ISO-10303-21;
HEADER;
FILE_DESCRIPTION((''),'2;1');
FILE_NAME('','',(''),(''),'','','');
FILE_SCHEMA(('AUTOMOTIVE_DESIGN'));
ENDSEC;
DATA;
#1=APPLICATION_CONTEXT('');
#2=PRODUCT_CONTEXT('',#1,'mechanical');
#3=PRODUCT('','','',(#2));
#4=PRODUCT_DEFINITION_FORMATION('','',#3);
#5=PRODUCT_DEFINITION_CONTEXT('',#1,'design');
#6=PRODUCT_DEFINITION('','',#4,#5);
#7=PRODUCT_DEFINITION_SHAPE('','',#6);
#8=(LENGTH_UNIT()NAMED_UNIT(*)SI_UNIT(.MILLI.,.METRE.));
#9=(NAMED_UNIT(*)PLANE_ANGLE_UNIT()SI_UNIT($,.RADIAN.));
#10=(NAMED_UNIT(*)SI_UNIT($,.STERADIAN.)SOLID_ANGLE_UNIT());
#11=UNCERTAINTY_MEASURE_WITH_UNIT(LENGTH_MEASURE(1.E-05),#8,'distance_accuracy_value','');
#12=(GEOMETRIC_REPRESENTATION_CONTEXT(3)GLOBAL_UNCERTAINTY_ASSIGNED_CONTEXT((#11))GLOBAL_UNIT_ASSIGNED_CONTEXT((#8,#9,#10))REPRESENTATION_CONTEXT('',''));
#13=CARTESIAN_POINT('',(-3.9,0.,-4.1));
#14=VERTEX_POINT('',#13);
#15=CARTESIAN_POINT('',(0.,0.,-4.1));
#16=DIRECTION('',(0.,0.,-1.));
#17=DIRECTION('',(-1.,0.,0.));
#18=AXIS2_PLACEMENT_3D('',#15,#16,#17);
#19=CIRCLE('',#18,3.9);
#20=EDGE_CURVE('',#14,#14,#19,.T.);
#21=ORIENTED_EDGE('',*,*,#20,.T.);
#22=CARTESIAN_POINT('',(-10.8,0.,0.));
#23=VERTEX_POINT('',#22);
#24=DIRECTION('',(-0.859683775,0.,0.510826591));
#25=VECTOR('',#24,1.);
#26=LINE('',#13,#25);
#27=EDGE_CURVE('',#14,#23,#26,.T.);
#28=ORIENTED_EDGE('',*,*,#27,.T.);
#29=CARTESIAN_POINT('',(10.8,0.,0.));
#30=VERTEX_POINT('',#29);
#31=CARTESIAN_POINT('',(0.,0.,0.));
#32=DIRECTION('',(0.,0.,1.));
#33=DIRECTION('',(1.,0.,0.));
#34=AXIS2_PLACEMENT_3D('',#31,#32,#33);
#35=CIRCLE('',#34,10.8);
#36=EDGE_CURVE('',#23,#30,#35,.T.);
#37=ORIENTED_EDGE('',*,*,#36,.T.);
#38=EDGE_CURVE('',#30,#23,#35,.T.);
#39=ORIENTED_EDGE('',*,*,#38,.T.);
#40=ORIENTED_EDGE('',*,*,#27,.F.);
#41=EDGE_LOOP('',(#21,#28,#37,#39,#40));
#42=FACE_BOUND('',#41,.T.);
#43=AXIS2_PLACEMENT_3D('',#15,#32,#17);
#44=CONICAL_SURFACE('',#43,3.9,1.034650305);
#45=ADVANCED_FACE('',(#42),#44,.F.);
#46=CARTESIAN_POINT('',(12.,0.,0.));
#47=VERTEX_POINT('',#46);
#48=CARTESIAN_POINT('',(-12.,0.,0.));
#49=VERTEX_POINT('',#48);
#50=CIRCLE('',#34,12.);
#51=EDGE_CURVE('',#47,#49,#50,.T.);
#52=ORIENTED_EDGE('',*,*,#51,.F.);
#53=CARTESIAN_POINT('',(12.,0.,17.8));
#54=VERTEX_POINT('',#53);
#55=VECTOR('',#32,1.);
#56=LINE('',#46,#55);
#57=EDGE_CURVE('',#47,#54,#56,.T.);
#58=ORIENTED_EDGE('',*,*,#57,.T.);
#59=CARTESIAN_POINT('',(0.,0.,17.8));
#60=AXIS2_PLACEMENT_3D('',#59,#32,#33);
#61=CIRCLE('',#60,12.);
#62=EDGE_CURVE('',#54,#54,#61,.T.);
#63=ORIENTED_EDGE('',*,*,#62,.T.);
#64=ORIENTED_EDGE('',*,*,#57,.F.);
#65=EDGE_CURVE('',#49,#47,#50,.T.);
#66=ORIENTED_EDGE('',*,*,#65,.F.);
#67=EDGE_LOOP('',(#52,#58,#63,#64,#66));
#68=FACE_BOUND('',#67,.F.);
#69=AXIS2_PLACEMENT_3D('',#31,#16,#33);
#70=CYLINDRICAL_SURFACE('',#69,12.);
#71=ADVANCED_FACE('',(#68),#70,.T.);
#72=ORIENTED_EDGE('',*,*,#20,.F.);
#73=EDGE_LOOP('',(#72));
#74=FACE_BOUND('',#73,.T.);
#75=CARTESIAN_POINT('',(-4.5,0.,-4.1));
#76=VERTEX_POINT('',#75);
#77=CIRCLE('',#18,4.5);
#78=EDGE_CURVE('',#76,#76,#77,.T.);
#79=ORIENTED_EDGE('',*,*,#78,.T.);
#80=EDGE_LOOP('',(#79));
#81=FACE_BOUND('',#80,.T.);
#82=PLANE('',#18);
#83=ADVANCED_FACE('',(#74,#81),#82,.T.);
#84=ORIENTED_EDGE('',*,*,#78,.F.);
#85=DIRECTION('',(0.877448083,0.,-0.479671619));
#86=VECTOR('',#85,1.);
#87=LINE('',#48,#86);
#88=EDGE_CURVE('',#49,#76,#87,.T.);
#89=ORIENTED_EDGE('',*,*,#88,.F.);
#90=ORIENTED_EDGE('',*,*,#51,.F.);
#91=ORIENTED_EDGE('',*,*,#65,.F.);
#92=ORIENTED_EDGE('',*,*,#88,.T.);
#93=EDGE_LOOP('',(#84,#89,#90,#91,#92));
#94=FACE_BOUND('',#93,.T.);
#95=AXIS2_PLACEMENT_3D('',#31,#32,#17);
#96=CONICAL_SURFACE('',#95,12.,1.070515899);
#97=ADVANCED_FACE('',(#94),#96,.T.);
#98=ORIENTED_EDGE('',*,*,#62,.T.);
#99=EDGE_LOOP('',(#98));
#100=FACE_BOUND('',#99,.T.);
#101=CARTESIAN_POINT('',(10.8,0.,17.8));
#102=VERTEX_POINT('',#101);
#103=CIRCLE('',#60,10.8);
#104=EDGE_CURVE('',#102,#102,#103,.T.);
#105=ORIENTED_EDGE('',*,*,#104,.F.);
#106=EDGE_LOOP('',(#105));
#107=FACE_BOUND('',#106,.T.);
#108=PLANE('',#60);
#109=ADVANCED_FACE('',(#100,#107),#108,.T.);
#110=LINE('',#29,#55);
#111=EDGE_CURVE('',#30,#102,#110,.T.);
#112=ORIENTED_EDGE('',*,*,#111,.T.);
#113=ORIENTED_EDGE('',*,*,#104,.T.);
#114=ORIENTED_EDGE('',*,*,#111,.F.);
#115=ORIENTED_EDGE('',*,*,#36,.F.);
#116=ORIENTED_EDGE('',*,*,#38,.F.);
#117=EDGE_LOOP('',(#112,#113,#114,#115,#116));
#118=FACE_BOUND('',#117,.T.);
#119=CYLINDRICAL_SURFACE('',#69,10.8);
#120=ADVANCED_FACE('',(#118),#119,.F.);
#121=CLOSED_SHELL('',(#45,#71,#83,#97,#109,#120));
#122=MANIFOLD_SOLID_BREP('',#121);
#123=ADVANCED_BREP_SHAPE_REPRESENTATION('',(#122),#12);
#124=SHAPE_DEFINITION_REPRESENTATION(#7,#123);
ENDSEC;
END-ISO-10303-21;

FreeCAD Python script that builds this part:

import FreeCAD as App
import Part
import Sketcher

V = App.Vector


def add_polygon(sketch, points):
    """Adds a closed chain of lines whose ends are joined by coincident constraints."""
    first, n = sketch.GeometryCount, len(points)
    for a, b in zip(points, points[1:] + points[:1]):
        sketch.addGeometry(Part.LineSegment(App.Vector(*a, 0), App.Vector(*b, 0)), False)
    for i in range(n):
        sketch.addConstraint(Sketcher.Constraint("Coincident", first + i, 2, first + (i + 1) % n, 1))

doc = App.newDocument("Part")
body = doc.addObject("PartDesign::Body", "Body")

sketch1 = body.newObject("Sketcher::SketchObject", "Sketch")
sketch1.AttachmentSupport = (doc.getObject("XY_Plane"), [""])
sketch1.MapMode = "FlatFace"
sketch1.addGeometry(Part.Circle(V(0, 0, 0), V(0, 0, 1), 12), False)
sketch1.addGeometry(Part.Circle(V(0, 0, 0), V(0, 0, 1), 11), False)
sketch1.addConstraint(Sketcher.Constraint("Coincident", 0, 3, -1, 1))
sketch1.addConstraint(Sketcher.Constraint("Coincident", 1, 3, -1, 1))
sketch1.addConstraint(Sketcher.Constraint("Diameter", 0, 24.0))
sketch1.addConstraint(Sketcher.Constraint("Diameter", 1, 21.6))
pad1 = body.newObject("PartDesign::Pad", "Pad")
pad1.Profile = sketch1
pad1.Length = 17.8

sketch2 = body.newObject("Sketcher::SketchObject", "Sketch001")
sketch2.AttachmentSupport = (doc.getObject("XZ_Plane"), [""])
sketch2.MapMode = "FlatFace"
add_polygon(sketch2, [(-3.9, -4.1), (-10.8, 0), (-12, 0), (-4.5, -4.1)])
sketch2.addConstraint(Sketcher.Constraint("Horizontal", 1))
sketch2.addConstraint(Sketcher.Constraint("Horizontal", 3))
sketch2.addConstraint(Sketcher.Constraint("PointOnObject", 0, 2, -1))
sketch2.addConstraint(Sketcher.Constraint("DistanceX", 1, 2, 1, 1, 1.2))
sketch2.addConstraint(Sketcher.Constraint("DistanceX", 3, 1, 3, 2, 0.6))
sketch2.addConstraint(Sketcher.Constraint("DistanceX", 1, 2, -1, 1, 12.0))
sketch2.addConstraint(Sketcher.Constraint("DistanceX", 2, 2, -1, 1, 4.5))
sketch2.addConstraint(Sketcher.Constraint("DistanceY", 2, 2, -1, 1, 4.1))
revolution = body.newObject("PartDesign::Revolution", "Revolution")
revolution.Profile = sketch2
revolution.ReferenceAxis = (sketch2, ["V_Axis"])
revolution.Angle = 360

doc.recompute()
